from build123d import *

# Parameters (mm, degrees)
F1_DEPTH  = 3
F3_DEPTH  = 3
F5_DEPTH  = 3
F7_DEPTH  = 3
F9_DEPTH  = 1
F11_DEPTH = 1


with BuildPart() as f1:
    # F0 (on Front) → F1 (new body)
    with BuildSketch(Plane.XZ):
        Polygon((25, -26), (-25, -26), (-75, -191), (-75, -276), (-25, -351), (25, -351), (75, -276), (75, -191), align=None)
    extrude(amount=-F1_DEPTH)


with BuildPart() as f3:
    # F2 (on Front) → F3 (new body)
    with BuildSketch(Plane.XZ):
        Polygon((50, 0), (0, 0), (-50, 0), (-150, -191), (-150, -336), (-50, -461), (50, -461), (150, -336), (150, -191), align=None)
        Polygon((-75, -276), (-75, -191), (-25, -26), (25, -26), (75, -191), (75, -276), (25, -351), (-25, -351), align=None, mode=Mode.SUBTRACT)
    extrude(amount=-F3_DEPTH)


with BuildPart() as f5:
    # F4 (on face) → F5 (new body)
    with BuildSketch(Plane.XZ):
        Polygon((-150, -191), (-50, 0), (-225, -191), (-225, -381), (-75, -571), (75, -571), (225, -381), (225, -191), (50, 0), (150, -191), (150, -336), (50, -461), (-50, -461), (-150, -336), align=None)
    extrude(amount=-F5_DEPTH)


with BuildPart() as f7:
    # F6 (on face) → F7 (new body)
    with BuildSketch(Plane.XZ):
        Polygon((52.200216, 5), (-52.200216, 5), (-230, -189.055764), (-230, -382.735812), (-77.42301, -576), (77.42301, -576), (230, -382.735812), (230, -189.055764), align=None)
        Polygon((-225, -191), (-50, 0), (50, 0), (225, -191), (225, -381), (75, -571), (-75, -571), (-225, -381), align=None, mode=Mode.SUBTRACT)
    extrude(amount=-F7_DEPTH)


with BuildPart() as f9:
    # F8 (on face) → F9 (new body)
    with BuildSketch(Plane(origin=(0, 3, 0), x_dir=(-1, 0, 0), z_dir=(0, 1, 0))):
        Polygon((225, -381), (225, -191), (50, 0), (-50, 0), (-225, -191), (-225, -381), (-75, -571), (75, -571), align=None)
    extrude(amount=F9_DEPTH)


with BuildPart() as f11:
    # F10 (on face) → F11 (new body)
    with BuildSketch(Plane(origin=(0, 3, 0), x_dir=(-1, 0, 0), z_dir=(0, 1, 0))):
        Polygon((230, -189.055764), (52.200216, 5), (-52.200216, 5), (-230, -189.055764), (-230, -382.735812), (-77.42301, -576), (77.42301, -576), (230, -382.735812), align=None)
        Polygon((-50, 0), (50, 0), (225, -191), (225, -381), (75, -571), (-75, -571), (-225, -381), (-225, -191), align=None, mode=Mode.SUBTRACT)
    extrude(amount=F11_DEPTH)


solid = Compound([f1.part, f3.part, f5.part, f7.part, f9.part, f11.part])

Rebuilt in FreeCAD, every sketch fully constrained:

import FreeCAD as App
import Part
import Sketcher

V = App.Vector


def add_polygon(sketch, points):
    """Adds a closed chain of lines whose ends are joined by coincident constraints."""
    first, n = sketch.GeometryCount, len(points)
    for a, b in zip(points, points[1:] + points[:1]):
        sketch.addGeometry(Part.LineSegment(App.Vector(*a, 0), App.Vector(*b, 0)), False)
    for i in range(n):
        sketch.addConstraint(Sketcher.Constraint("Coincident", first + i, 2, first + (i + 1) % n, 1))

doc = App.newDocument("Part")
params = doc.addObject("Spreadsheet::Sheet", "Params")
for row, (alias, value) in enumerate([
    ("sketch1_width", "50 mm"),
    ("sketch1_height", "85 mm"),
    ("pad1_length", "3 mm"),
    ("sketch2_width", "100 mm"),
    ("sketch2_width2", "50 mm"),
    ("sketch2_height", "145 mm"),
    ("sketch2_height2", "85 mm"),
    ("pad2_length", "3 mm"),
    ("sketch3_width", "150 mm"),
    ("sketch3_width2", "100 mm"),
    ("sketch3_height", "190 mm"),
    ("sketch3_height2", "145 mm"),
    ("pad3_length", "3 mm"),
    ("sketch4_width", "100 mm"),
    ("sketch4_width2", "150 mm"),
    ("sketch4_height", "190 mm"),
    ("pad4_length", "3 mm"),
    ("sketch5_width", "100 mm"),
    ("sketch5_width2", "150 mm"),
    ("sketch5_height", "190 mm"),
    ("pad5_length", "1 mm"),
    ("sketch6_width", "100 mm"),
    ("sketch6_width2", "150 mm"),
    ("sketch6_height", "190 mm"),
    ("pad6_length", "1 mm"),
], start=1):
    params.set(f"A{row}", alias)
    params.set(f"B{row}", "=" + value)
    params.setAlias(f"B{row}", alias)

body = doc.addObject("PartDesign::Body", "Body")

# Sketch on XZ plane
sketch1 = body.newObject("Sketcher::SketchObject", "Sketch")
sketch1.AttachmentSupport = (doc.getObject("XZ_Plane"), [""])
sketch1.MapMode = "FlatFace"
add_polygon(sketch1, [(25, -26), (-25, -26), (-75, -191), (-75, -276), (-25, -351), (25, -351), (75, -276), (75, -191)])  # lines 0-7
sketch1.addConstraint(Sketcher.Constraint("Horizontal", 0))
sketch1.addConstraint(Sketcher.Constraint("Vertical", 2))
sketch1.addConstraint(Sketcher.Constraint("Horizontal", 4))
sketch1.addConstraint(Sketcher.Constraint("Vertical", 6))
sketch1.addConstraint(Sketcher.Constraint("Symmetric", 2, 2, 5, 2, -2))
sketch1.addConstraint(Sketcher.Constraint("Horizontal", 1, 2, 6, 2))
sketch1.addConstraint(Sketcher.Constraint("Vertical", 0, 2, 3, 2))
sketch1.addConstraint(Sketcher.Constraint("Vertical", 4, 2, 7, 2))
sketch1.addConstraint(Sketcher.Constraint("Equal", 3, 5))
sketch1.addConstraint(Sketcher.Constraint("DistanceX", 0, 2, 0, 1, 50.0))
sketch1.addConstraint(Sketcher.Constraint("DistanceY", 2, 2, 2, 1, 85.0))
sketch1.addConstraint(Sketcher.Constraint("DistanceY", 0, 2, -1, 1, 26.0))
sketch1.addConstraint(Sketcher.Constraint("DistanceX", 1, 2, -1, 1, 75.0))
sketch1.addConstraint(Sketcher.Constraint("DistanceY", 1, 2, -1, 1, 191.0))
sketch1.addConstraint(Sketcher.Constraint("DistanceY", 3, 2, -1, 1, 351.0))
sketch1.setExpression("Constraints[17]", "Params.sketch1_width")
sketch1.setExpression("Constraints[18]", "Params.sketch1_height")
pad1 = body.newObject("PartDesign::Pad", "Pad")
pad1.Profile = sketch1
pad1.setExpression("Length", "Params.pad1_length")
pad1.Reversed = True
body2 = doc.addObject("PartDesign::Body", "Body001")

# Sketch on XZ plane
sketch2 = body2.newObject("Sketcher::SketchObject", "Sketch001")
sketch2.AttachmentSupport = (doc.getObject("XZ_Plane001"), [""])
sketch2.MapMode = "FlatFace"
add_polygon(sketch2, [(50, 0), (-50, 0), (-150, -191), (-150, -336), (-50, -461), (50, -461), (150, -336), (150, -191)])  # lines 0-7
add_polygon(sketch2, [(-25, -351), (-75, -276), (-75, -191), (-25, -26), (25, -26), (75, -191), (75, -276), (25, -351)])  # lines 8-15
sketch2.addConstraint(Sketcher.Constraint("Horizontal", 0))
sketch2.addConstraint(Sketcher.Constraint("Vertical", 2))
sketch2.addConstraint(Sketcher.Constraint("Horizontal", 4))
sketch2.addConstraint(Sketcher.Constraint("Vertical", 6))
sketch2.addConstraint(Sketcher.Constraint("Vertical", 9))
sketch2.addConstraint(Sketcher.Constraint("Horizontal", 11))
sketch2.addConstraint(Sketcher.Constraint("Vertical", 13))
sketch2.addConstraint(Sketcher.Constraint("Horizontal", 15))
sketch2.addConstraint(Sketcher.Constraint("Symmetric", 0, 2, 7, 2, -1, 1))
sketch2.addConstraint(Sketcher.Constraint("Symmetric", 2, 2, 5, 2, -2))
sketch2.addConstraint(Sketcher.Constraint("Symmetric", 9, 2, 12, 2, -2))
sketch2.addConstraint(Sketcher.Constraint("Horizontal", 1, 2, 6, 2))
sketch2.addConstraint(Sketcher.Constraint("Horizontal", 6, 2, 9, 2))
sketch2.addConstraint(Sketcher.Constraint("Horizontal", 8, 2, 13, 2))
sketch2.addConstraint(Sketcher.Constraint("Vertical", 0, 2, 3, 2))
sketch2.addConstraint(Sketcher.Constraint("Vertical", 4, 2, 7, 2))
sketch2.addConstraint(Sketcher.Constraint("Vertical", 11, 2, 14, 2))
sketch2.addConstraint(Sketcher.Constraint("Vertical", 10, 2, 15, 2))
sketch2.addConstraint(Sketcher.Constraint("Equal", 10, 12))
sketch2.addConstraint(Sketcher.Constraint("DistanceX", 0, 2, 0, 1, 100.0))
sketch2.addConstraint(Sketcher.Constraint("DistanceX", 11, 1, 11, 2, 50.0))
sketch2.addConstraint(Sketcher.Constraint("DistanceY", 2, 2, 2, 1, 145.0))
sketch2.addConstraint(Sketcher.Constraint("DistanceY", 9, 1, 9, 2, 85.0))
sketch2.addConstraint(Sketcher.Constraint("DistanceX", 1, 2, -1, 1, 150.0))
sketch2.addConstraint(Sketcher.Constraint("DistanceY", 1, 2, -1, 1, 191.0))
sketch2.addConstraint(Sketcher.Constraint("DistanceY", 3, 2, -1, 1, 461.0))
sketch2.addConstraint(Sketcher.Constraint("DistanceX", 8, 2, -1, 1, 75.0))
sketch2.addConstraint(Sketcher.Constraint("DistanceY", 10, 2, -1, 1, 26.0))
sketch2.addConstraint(Sketcher.Constraint("DistanceY", 14, 2, -1, 1, 351.0))
sketch2.setExpression("Constraints[35]", "Params.sketch2_width")
sketch2.setExpression("Constraints[36]", "Params.sketch2_width2")
sketch2.setExpression("Constraints[37]", "Params.sketch2_height")
sketch2.setExpression("Constraints[38]", "Params.sketch2_height2")
pad2 = body2.newObject("PartDesign::Pad", "Pad001")
pad2.Profile = sketch2
pad2.setExpression("Length", "Params.pad2_length")
pad2.Reversed = True
body3 = doc.addObject("PartDesign::Body", "Body002")

# Sketch on XZ plane
sketch3 = body3.newObject("Sketcher::SketchObject", "Sketch002")
sketch3.AttachmentSupport = (doc.getObject("XZ_Plane002"), [""])
sketch3.MapMode = "FlatFace"
add_polygon(sketch3, [(-150, -191), (-50, 0), (-225, -191), (-225, -381), (-75, -571), (75, -571), (225, -381), (225, -191), (50, 0), (150, -191), (150, -336), (50, -461), (-50, -461), (-150, -336)])  # lines 0-13
sketch3.addConstraint(Sketcher.Constraint("Vertical", 2))
sketch3.addConstraint(Sketcher.Constraint("Horizontal", 4))
sketch3.addConstraint(Sketcher.Constraint("Vertical", 6))
sketch3.addConstraint(Sketcher.Constraint("Vertical", 9))
sketch3.addConstraint(Sketcher.Constraint("Horizontal", 11))
sketch3.addConstraint(Sketcher.Constraint("Vertical", 13))
sketch3.addConstraint(Sketcher.Constraint("Symmetric", 0, 2, 7, 2, -1, 1))
sketch3.addConstraint(Sketcher.Constraint("Symmetric", 2, 2, 5, 2, -2))
sketch3.addConstraint(Sketcher.Constraint("Symmetric", 9, 2, 12, 2, -2))
sketch3.addConstraint(Sketcher.Constraint("PointOnObject", 0, 2, -1))
sketch3.addConstraint(Sketcher.Constraint("Horizontal", 1, 2, 6, 2))
sketch3.addConstraint(Sketcher.Constraint("Horizontal", 6, 2, 8, 2))
sketch3.addConstraint(Sketcher.Constraint("Horizontal", 8, 2, 13, 2))
sketch3.addConstraint(Sketcher.Constraint("Vertical", 7, 2, 10, 2))
sketch3.addConstraint(Sketcher.Constraint("Vertical", 0, 2, 11, 2))
sketch3.addConstraint(Sketcher.Constraint("Equal", 3, 5))
sketch3.addConstraint(Sketcher.Constraint("DistanceX", 4, 1, 4, 2, 150.0))
sketch3.addConstraint(Sketcher.Constraint("DistanceX", 11, 2, 11, 1, 100.0))
sketch3.addConstraint(Sketcher.Constraint("DistanceY", 2, 2, 2, 1, 190.0))
sketch3.addConstraint(Sketcher.Constraint("DistanceY", 9, 2, 9, 1, 145.0))
sketch3.addConstraint(Sketcher.Constraint("DistanceX", 1, 2, -1, 1, 225.0))
sketch3.addConstraint(Sketcher.Constraint("DistanceY", 1, 2, -1, 1, 191.0))
sketch3.addConstraint(Sketcher.Constraint("DistanceY", 3, 2, -1, 1, 571.0))
sketch3.addConstraint(Sketcher.Constraint("DistanceX", -1, 1, 8, 2, 150.0))
sketch3.addConstraint(Sketcher.Constraint("DistanceY", 10, 2, -1, 1, 461.0))
sketch3.setExpression("Constraints[30]", "Params.sketch3_width")
sketch3.setExpression("Constraints[31]", "Params.sketch3_width2")
sketch3.setExpression("Constraints[32]", "Params.sketch3_height")
sketch3.setExpression("Constraints[33]", "Params.sketch3_height2")
pad3 = body3.newObject("PartDesign::Pad", "Pad002")
pad3.Profile = sketch3
pad3.setExpression("Length", "Params.pad3_length")
pad3.Reversed = True
body4 = doc.addObject("PartDesign::Body", "Body003")

# Sketch on XZ plane
sketch4 = body4.newObject("Sketcher::SketchObject", "Sketch003")
sketch4.AttachmentSupport = (doc.getObject("XZ_Plane003"), [""])
sketch4.MapMode = "FlatFace"
add_polygon(sketch4, [(52, 5), (-52, 5), (-230, -189), (-230, -383), (-77, -576), (77, -576), (230, -383), (230, -189)])  # lines 0-7
add_polygon(sketch4, [(-225, -381), (-225, -191), (-50, 0), (50, 0), (225, -191), (225, -381), (75, -571), (-75, -571)])  # lines 8-15
sketch4.addConstraint(Sketcher.Constraint("Horizontal", 0))
sketch4.addConstraint(Sketcher.Constraint("Vertical", 2))
sketch4.addConstraint(Sketcher.Constraint("Horizontal", 4))
sketch4.addConstraint(Sketcher.Constraint("Vertical", 6))
sketch4.addConstraint(Sketcher.Constraint("Vertical", 8))
sketch4.addConstraint(Sketcher.Constraint("Horizontal", 10))
sketch4.addConstraint(Sketcher.Constraint("Vertical", 12))
sketch4.addConstraint(Sketcher.Constraint("Horizontal", 14))
sketch4.addConstraint(Sketcher.Constraint("Symmetric", 9, 2, 10, 2, -1, 1))
sketch4.addConstraint(Sketcher.Constraint("Symmetric", 2, 2, 5, 2, -2))
sketch4.addConstraint(Sketcher.Constraint("Symmetric", 8, 2, 11, 2, -2))
sketch4.addConstraint(Sketcher.Constraint("Parallel", 1, 9))
sketch4.addConstraint(Sketcher.Constraint("Parallel", 7, 11))
sketch4.addConstraint(Sketcher.Constraint("Parallel", 5, 13))
sketch4.addConstraint(Sketcher.Constraint("Parallel", 3, 15))
sketch4.addConstraint(Sketcher.Constraint("Horizontal", 1, 2, 6, 2))
sketch4.addConstraint(Sketcher.Constraint("Horizontal", 12, 2, 15, 2))
sketch4.addConstraint(Sketcher.Constraint("Equal", 3, 5))
sketch4.addConstraint(Sketcher.Constraint("DistanceX", 10, 1, 10, 2, 100.0))
sketch4.addConstraint(Sketcher.Constraint("DistanceX", 14, 2, 14, 1, 150.0))
sketch4.addConstraint(Sketcher.Constraint("DistanceY", 8, 1, 8, 2, 190.0))
sketch4.addConstraint(Sketcher.Constraint("DistanceY", -1, 1, 0, 2, 5.0))
sketch4.addConstraint(Sketcher.Constraint("DistanceX", 1, 2, -1, 1, 230.0))
sketch4.addConstraint(Sketcher.Constraint("DistanceY", 3, 2, -1, 1, 576.0))
sketch4.addConstraint(Sketcher.Constraint("DistanceX", 8, 2, -1, 1, 225.0))
sketch4.addConstraint(Sketcher.Constraint("DistanceY", 8, 2, -1, 1, 191.0))
sketch4.addConstraint(Sketcher.Constraint("DistanceY", 13, 2, -1, 1, 571.0))
sketch4.addConstraint(Sketcher.Constraint("DistanceX", 0, 2, 0, 1, 104.400432))
sketch4.addConstraint(Sketcher.Constraint("DistanceX", 4, 1, 4, 2, 154.84602))
sketch4.setExpression("Constraints[34]", "Params.sketch4_width")
sketch4.setExpression("Constraints[35]", "Params.sketch4_width2")
sketch4.setExpression("Constraints[36]", "Params.sketch4_height")
pad4 = body4.newObject("PartDesign::Pad", "Pad003")
pad4.Profile = sketch4
pad4.setExpression("Length", "Params.pad4_length")
pad4.Reversed = True
body5 = doc.addObject("PartDesign::Body", "Body004")

# Sketch on XZ plane
sketch5 = body5.newObject("Sketcher::SketchObject", "Sketch004")
sketch5.AttachmentSupport = (doc.getObject("XZ_Plane004"), [""])
sketch5.MapMode = "FlatFace"
sketch5.AttachmentOffset = App.Placement(V(0, 0, -3), App.Rotation())
add_polygon(sketch5, [(-225, -381), (-225, -191), (-50, 0), (50, 0), (225, -191), (225, -381), (75, -571), (-75, -571)])  # lines 0-7
sketch5.addConstraint(Sketcher.Constraint("Vertical", 0))
sketch5.addConstraint(Sketcher.Constraint("Horizontal", 2))
sketch5.addConstraint(Sketcher.Constraint("Vertical", 4))
sketch5.addConstraint(Sketcher.Constraint("Horizontal", 6))
sketch5.addConstraint(Sketcher.Constraint("Symmetric", 1, 2, 2, 2, -1, 1))
sketch5.addConstraint(Sketcher.Constraint("Symmetric", 0, 2, 3, 2, -2))
sketch5.addConstraint(Sketcher.Constraint("Horizontal", 4, 2, 7, 2))
sketch5.addConstraint(Sketcher.Constraint("Equal", 5, 7))
sketch5.addConstraint(Sketcher.Constraint("DistanceX", 2, 1, 2, 2, 100.0))
sketch5.addConstraint(Sketcher.Constraint("DistanceX", 6, 2, 6, 1, 150.0))
sketch5.addConstraint(Sketcher.Constraint("DistanceY", 0, 1, 0, 2, 190.0))
sketch5.addConstraint(Sketcher.Constraint("DistanceX", 0, 2, -1, 1, 225.0))
sketch5.addConstraint(Sketcher.Constraint("DistanceY", 0, 2, -1, 1, 191.0))
sketch5.addConstraint(Sketcher.Constraint("DistanceY", 5, 2, -1, 1, 571.0))
sketch5.setExpression("Constraints[16]", "Params.sketch5_width")
sketch5.setExpression("Constraints[17]", "Params.sketch5_width2")
sketch5.setExpression("Constraints[18]", "Params.sketch5_height")
pad5 = body5.newObject("PartDesign::Pad", "Pad004")
pad5.Profile = sketch5
pad5.setExpression("Length", "Params.pad5_length")
pad5.Reversed = True
body6 = doc.addObject("PartDesign::Body", "Body005")

# Sketch on XZ plane
sketch6 = body6.newObject("Sketcher::SketchObject", "Sketch005")
sketch6.AttachmentSupport = (doc.getObject("XZ_Plane005"), [""])
sketch6.MapMode = "FlatFace"
sketch6.AttachmentOffset = App.Placement(V(0, 0, -3), App.Rotation())
add_polygon(sketch6, [(-230, -189), (-52, 5), (52, 5), (230, -189), (230, -383), (77, -576), (-77, -576), (-230, -383)])  # lines 0-7
add_polygon(sketch6, [(225, -191), (50, 0), (-50, 0), (-225, -191), (-225, -381), (-75, -571), (75, -571), (225, -381)])  # lines 8-15
sketch6.addConstraint(Sketcher.Constraint("Horizontal", 1))
sketch6.addConstraint(Sketcher.Constraint("Vertical", 3))
sketch6.addConstraint(Sketcher.Constraint("Horizontal", 5))
sketch6.addConstraint(Sketcher.Constraint("Vertical", 7))
sketch6.addConstraint(Sketcher.Constraint("Horizontal", 9))
sketch6.addConstraint(Sketcher.Constraint("Vertical", 11))
sketch6.addConstraint(Sketcher.Constraint("Horizontal", 13))
sketch6.addConstraint(Sketcher.Constraint("Vertical", 15))
sketch6.addConstraint(Sketcher.Constraint("Symmetric", 8, 2, 9, 2, -1, 1))
sketch6.addConstraint(Sketcher.Constraint("Symmetric", 3, 2, 6, 2, -2))
sketch6.addConstraint(Sketcher.Constraint("Symmetric", 11, 2, 14, 2, -2))
sketch6.addConstraint(Sketcher.Constraint("Parallel", 2, 8))
sketch6.addConstraint(Sketcher.Constraint("Parallel", 0, 10))
sketch6.addConstraint(Sketcher.Constraint("Parallel", 6, 12))
sketch6.addConstraint(Sketcher.Constraint("Parallel", 4, 14))
sketch6.addConstraint(Sketcher.Constraint("Horizontal", 2, 2, 7, 2))
sketch6.addConstraint(Sketcher.Constraint("Horizontal", 10, 2, 15, 2))
sketch6.addConstraint(Sketcher.Constraint("Equal", 4, 6))
sketch6.addConstraint(Sketcher.Constraint("DistanceX", 9, 2, 9, 1, 100.0))
sketch6.addConstraint(Sketcher.Constraint("DistanceX", 13, 1, 13, 2, 150.0))
sketch6.addConstraint(Sketcher.Constraint("DistanceY", 11, 2, 11, 1, 190.0))
sketch6.addConstraint(Sketcher.Constraint("DistanceY", -1, 1, 0, 2, 5.0))
sketch6.addConstraint(Sketcher.Constraint("DistanceX", -1, 1, 2, 2, 230.0))
sketch6.addConstraint(Sketcher.Constraint("DistanceY", 4, 2, -1, 1, 576.0))
sketch6.addConstraint(Sketcher.Constraint("DistanceX", 10, 2, -1, 1, 225.0))
sketch6.addConstraint(Sketcher.Constraint("DistanceY", 10, 2, -1, 1, 191.0))
sketch6.addConstraint(Sketcher.Constraint("DistanceY", 12, 2, -1, 1, 571.0))
sketch6.addConstraint(Sketcher.Constraint("DistanceX", 1, 1, 1, 2, 104.400432))
sketch6.addConstraint(Sketcher.Constraint("DistanceX", 5, 2, 5, 1, 154.84602))
sketch6.setExpression("Constraints[34]", "Params.sketch6_width")
sketch6.setExpression("Constraints[35]", "Params.sketch6_width2")
sketch6.setExpression("Constraints[36]", "Params.sketch6_height")
pad6 = body6.newObject("PartDesign::Pad", "Pad005")
pad6.Profile = sketch6
pad6.setExpression("Length", "Params.pad6_length")
pad6.Reversed = True

doc.recompute()
